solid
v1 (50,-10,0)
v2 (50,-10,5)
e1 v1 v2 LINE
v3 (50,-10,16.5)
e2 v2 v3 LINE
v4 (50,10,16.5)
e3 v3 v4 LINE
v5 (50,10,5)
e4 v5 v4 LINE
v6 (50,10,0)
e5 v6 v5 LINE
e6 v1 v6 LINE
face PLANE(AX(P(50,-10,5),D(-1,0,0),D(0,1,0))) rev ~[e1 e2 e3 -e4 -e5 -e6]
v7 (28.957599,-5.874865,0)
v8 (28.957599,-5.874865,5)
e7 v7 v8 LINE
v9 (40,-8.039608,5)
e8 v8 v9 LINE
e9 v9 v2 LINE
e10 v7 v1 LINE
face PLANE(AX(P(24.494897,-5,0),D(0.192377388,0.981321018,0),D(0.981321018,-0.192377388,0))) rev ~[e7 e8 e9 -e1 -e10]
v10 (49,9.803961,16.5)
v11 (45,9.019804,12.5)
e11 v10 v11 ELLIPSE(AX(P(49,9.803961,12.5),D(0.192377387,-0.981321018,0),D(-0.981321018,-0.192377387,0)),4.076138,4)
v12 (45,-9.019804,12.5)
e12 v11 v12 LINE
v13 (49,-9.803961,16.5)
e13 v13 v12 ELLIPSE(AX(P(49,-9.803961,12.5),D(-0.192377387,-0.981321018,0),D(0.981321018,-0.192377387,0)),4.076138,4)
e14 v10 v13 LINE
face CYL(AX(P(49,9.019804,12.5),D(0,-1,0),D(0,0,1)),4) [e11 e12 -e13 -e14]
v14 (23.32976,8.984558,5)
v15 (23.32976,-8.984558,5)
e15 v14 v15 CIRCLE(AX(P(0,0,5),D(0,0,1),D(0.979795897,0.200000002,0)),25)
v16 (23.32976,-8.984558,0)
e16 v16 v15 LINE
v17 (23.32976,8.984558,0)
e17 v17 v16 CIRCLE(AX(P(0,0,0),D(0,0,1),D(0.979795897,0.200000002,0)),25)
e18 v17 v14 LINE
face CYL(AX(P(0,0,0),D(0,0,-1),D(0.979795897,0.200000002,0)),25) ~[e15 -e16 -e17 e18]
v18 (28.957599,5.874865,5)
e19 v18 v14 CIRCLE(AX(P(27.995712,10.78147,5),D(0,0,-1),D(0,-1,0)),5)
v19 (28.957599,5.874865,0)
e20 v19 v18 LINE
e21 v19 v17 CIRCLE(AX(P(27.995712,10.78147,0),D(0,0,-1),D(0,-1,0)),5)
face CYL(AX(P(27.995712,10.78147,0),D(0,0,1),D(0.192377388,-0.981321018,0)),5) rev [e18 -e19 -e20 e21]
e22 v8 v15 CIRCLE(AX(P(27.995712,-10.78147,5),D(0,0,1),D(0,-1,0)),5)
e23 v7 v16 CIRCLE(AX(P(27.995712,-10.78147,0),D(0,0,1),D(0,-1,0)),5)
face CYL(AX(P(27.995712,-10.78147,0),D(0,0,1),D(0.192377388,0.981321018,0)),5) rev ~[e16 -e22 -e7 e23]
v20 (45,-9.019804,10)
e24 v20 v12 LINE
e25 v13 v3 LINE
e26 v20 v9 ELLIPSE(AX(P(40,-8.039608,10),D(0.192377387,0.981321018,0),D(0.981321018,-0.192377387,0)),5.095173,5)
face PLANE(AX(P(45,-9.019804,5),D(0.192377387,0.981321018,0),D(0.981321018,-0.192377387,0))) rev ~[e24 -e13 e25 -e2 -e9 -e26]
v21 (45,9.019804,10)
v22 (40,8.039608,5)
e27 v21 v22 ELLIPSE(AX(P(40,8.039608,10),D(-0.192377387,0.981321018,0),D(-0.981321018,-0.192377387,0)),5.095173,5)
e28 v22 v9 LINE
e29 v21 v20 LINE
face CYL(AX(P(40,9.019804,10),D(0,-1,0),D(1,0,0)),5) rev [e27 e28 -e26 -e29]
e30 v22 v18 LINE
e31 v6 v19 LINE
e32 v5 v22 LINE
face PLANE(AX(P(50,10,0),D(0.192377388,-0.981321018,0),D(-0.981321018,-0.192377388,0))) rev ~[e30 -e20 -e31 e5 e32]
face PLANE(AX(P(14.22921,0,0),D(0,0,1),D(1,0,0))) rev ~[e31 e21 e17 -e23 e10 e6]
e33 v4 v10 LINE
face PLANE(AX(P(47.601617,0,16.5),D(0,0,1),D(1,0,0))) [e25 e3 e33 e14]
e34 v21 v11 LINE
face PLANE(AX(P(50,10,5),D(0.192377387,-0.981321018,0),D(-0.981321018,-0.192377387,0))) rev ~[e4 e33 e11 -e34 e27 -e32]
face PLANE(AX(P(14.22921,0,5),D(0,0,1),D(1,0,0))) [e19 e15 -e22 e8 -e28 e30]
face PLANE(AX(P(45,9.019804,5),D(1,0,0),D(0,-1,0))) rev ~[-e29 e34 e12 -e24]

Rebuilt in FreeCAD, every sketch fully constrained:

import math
import FreeCAD as App
import Part
import Sketcher
from FreeCAD import Vector


def edges_at(feature, points):
    """Names of the edges that pass closest to the given points."""
    edges = feature.Shape.Edges
    near = lambda p: min(range(len(edges)), key=lambda i: edges[i].distToShape(Part.Vertex(*p))[0])
    return sorted({f"Edge{near(p) + 1}" for p in points})

doc = App.newDocument("Part")
params = doc.addObject("Spreadsheet::Sheet", "Params")
for row, (alias, value) in enumerate([
    ("sketch1_radius", "25 mm"),
    ("sketch1_height", "20 mm"),
    ("pad1_length", "5 mm"),
    ("sketch2_height", "20 mm"),
    ("pad2_length", "11.5 mm"),
    ("fillet_radius", "5 mm"),
    ("fillet2_radius", "4 mm"),
], start=1):
    params.set(f"A{row}", alias)
    params.set(f"B{row}", "=" + value)
    params.setAlias(f"B{row}", alias)

body = doc.addObject("PartDesign::Body", "Body")

# Sketch on XY plane
sketch1 = doc.addObject("Sketcher::SketchObject", "Sketch")
body.addObject(sketch1)
sketch1.AttachmentSupport = (doc.XY_Plane, [""])
sketch1.MapMode = "FlatFace"
sketch1.addGeometry([
    Part.LineSegment(Vector(50, 10, 0), Vector(24.494897, 5, 0)),
    Part.ArcOfCircle(Part.Circle(Vector(0, 0, 0), Vector(0, 0, 1), 25), math.radians(11.536959), math.radians(348.463041)),
    Part.LineSegment(Vector(24.494897, -5, 0), Vector(50, -10, 0)),
    Part.LineSegment(Vector(50, -10, 0), Vector(50, 10, 0)),
], False)
sketch1.addConstraint([
    Sketcher.Constraint("Coincident", 0, 2, 1, 1),
    Sketcher.Constraint("Coincident", 1, 2, 2, 1),
    Sketcher.Constraint("Coincident", 2, 2, 3, 1),
    Sketcher.Constraint("Coincident", 3, 2, 0, 1),
    Sketcher.Constraint("Vertical", 3),
    Sketcher.Constraint("Coincident", 1, 3, -1, 1),
    Sketcher.Constraint("Vertical", 0, 2, 1, 2),
    Sketcher.Constraint("Equal", 0, 2),
    Sketcher.Constraint("Radius", 1, 25.0),
    Sketcher.Constraint("DistanceY", 3, 1, 3, 2, 20.0),
    Sketcher.Constraint("DistanceY", -1, 1, 0, 2, 5.0),
    Sketcher.Constraint("DistanceX", -1, 1, 2, 2, 50.0),
])
sketch1.setExpression("Constraints[8]", "Params.sketch1_radius")
sketch1.setExpression("Constraints[9]", "Params.sketch1_height")
pad1 = doc.addObject("PartDesign::Pad", "Pad")
body.addObject(pad1)
pad1.Profile = sketch1
pad1.setExpression("Length", "Params.pad1_length")

# Sketch on XY plane
sketch2 = doc.addObject("Sketcher::SketchObject", "Sketch001")
body.addObject(sketch2)
sketch2.AttachmentSupport = (doc.XY_Plane, [""])
sketch2.MapMode = "FlatFace"
sketch2.AttachmentOffset = App.Placement(Vector(0, 0, 5), App.Rotation())
sketch2.addGeometry([
    Part.LineSegment(Vector(50, -10, 0), Vector(50, 10, 0)),
    Part.LineSegment(Vector(50, 10, 0), Vector(45, 9.019804, 0)),
    Part.LineSegment(Vector(45, 9.019804, 0), Vector(45, -9.019804, 0)),
    Part.LineSegment(Vector(45, -9.019804, 0), Vector(50, -10, 0)),
], False)
sketch2.addConstraint([
    Sketcher.Constraint("Coincident", 0, 2, 1, 1),
    Sketcher.Constraint("Coincident", 1, 2, 2, 1),
    Sketcher.Constraint("Coincident", 2, 2, 3, 1),
    Sketcher.Constraint("Coincident", 3, 2, 0, 1),
    Sketcher.Constraint("Vertical", 0),
    Sketcher.Constraint("Vertical", 2),
    Sketcher.Constraint("Equal", 1, 3),
    Sketcher.Constraint("DistanceY", 0, 1, 0, 2, 20.0),
    Sketcher.Constraint("DistanceX", -1, 1, 0, 2, 50.0),
    Sketcher.Constraint("DistanceY", -1, 1, 0, 2, 10.0),
    Sketcher.Constraint("DistanceX", -1, 1, 1, 2, 45.0),
    Sketcher.Constraint("DistanceY", 2, 2, 2, 1, 18.039608),
])
sketch2.setExpression("Constraints[7]", "Params.sketch2_height")
pad2 = doc.addObject("PartDesign::Pad", "Pad001")
body.addObject(pad2)
pad2.Profile = sketch2
pad2.setExpression("Length", "Params.pad2_length")
doc.recompute()

fillet = doc.addObject("PartDesign::Fillet", "Fillet")
body.addObject(fillet)
fillet.Base = (pad2, edges_at(pad2, [(24.495, 5, 2.5), (24.495, -5, 2.5), (45, 0, 5)]))
fillet.setExpression("Radius", "Params.fillet_radius")
doc.recompute()

fillet2 = doc.addObject("PartDesign::Fillet", "Fillet001")
body.addObject(fillet2)
fillet2.Base = (fillet, edges_at(fillet, [(45, 0, 16.5)]))
fillet2.setExpression("Radius", "Params.fillet2_radius")

doc.recompute()
